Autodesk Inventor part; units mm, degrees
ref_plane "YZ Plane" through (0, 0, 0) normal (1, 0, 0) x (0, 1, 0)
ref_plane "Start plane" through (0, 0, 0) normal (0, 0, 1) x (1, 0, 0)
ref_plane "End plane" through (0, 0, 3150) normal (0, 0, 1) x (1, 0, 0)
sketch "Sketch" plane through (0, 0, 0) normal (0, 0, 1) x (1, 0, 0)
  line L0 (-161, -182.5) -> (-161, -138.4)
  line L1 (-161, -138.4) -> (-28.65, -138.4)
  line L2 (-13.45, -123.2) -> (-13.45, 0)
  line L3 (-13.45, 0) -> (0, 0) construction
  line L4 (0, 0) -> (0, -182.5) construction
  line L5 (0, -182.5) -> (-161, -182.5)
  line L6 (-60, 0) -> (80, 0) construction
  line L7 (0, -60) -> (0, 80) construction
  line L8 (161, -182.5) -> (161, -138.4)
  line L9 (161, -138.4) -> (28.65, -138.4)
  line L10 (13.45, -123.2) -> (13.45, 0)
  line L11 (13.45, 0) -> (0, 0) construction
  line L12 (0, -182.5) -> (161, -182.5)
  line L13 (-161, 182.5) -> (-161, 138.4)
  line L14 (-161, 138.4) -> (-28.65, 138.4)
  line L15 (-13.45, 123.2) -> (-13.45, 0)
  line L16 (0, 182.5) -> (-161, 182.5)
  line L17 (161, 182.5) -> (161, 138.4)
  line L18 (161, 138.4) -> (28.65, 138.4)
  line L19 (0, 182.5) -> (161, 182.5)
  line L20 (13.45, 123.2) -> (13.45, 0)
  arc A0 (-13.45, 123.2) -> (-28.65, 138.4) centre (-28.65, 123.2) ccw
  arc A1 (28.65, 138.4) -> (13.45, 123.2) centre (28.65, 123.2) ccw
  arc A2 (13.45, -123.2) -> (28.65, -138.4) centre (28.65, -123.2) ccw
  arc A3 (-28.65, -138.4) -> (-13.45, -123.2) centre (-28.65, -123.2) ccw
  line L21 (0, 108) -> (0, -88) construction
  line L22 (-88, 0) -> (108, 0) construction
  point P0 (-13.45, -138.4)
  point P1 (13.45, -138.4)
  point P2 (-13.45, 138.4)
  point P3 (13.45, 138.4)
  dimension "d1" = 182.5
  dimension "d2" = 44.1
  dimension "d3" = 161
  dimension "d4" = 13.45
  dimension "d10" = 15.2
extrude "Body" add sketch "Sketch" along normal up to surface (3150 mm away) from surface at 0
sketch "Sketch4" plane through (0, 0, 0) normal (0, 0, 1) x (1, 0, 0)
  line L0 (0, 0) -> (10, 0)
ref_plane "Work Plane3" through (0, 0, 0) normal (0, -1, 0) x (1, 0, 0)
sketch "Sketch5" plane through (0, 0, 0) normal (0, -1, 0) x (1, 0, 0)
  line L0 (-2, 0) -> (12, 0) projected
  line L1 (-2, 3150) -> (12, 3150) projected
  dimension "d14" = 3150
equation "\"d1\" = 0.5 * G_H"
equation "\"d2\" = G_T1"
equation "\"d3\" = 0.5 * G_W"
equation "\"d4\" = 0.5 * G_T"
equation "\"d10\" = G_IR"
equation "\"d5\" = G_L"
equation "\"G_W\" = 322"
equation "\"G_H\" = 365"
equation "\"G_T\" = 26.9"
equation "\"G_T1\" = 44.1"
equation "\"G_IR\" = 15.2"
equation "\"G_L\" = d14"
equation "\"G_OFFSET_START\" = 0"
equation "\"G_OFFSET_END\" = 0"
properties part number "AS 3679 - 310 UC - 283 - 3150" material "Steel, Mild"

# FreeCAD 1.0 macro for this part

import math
import FreeCAD as App
import Part
import Sketcher

V = App.Vector
Q = App.Units.Quantity

doc = App.newDocument("Part")
params = doc.addObject("Spreadsheet::Sheet", "Params")
for row, (alias, value) in enumerate([
    ("sketch1_radius", "15.2 mm"),
    ("sketch1_height", "44.1 mm"),
    ("pad1_length", "3150 mm"),
], start=1):
    params.set(f"A{row}", alias)
    params.set(f"B{row}", "=" + value)
    params.setAlias(f"B{row}", alias)

body = doc.addObject("PartDesign::Body", "Body")

sketch1 = doc.addObject("Sketcher::SketchObject", "Sketch")
body.addObject(sketch1)
sketch1.AttachmentSupport = (doc.XY_Plane, [""])
sketch1.MapMode = "FlatFace"
sketch1.addGeometry(Part.LineSegment(V(-161, -138, 0), V(-161, -182, 0)), False)
sketch1.addGeometry(Part.LineSegment(V(-161, -182, 0), V(161, -182, 0)), False)
sketch1.addGeometry(Part.LineSegment(V(161, -182, 0), V(161, -138, 0)), False)
sketch1.addGeometry(Part.LineSegment(V(161, -138, 0), V(29, -138, 0)), False)
sketch1.addGeometry(Part.ArcOfCircle(Part.Circle(V(29, -123, 0), V(0, 0, 1), 15), math.radians(180), math.radians(270)), False)
sketch1.addGeometry(Part.LineSegment(V(13, -123, 0), V(13, 123, 0)), False)
sketch1.addGeometry(Part.ArcOfCircle(Part.Circle(V(29, 123, 0), V(0, 0, 1), 15), math.radians(90), math.radians(180)), False)
sketch1.addGeometry(Part.LineSegment(V(29, 138, 0), V(161, 138, 0)), False)
sketch1.addGeometry(Part.LineSegment(V(161, 138, 0), V(161, 182, 0)), False)
sketch1.addGeometry(Part.LineSegment(V(161, 182, 0), V(-161, 182, 0)), False)
sketch1.addGeometry(Part.LineSegment(V(-161, 182, 0), V(-161, 138, 0)), False)
sketch1.addGeometry(Part.LineSegment(V(-161, 138, 0), V(-29, 138, 0)), False)
sketch1.addGeometry(Part.ArcOfCircle(Part.Circle(V(-29, 123, 0), V(0, 0, 1), 15), math.radians(0), math.radians(90)), False)
sketch1.addGeometry(Part.LineSegment(V(-13, 123, 0), V(-13, -123, 0)), False)
sketch1.addGeometry(Part.ArcOfCircle(Part.Circle(V(-29, -123, 0), V(0, 0, 1), 15), math.radians(-90), math.radians(0)), False)
sketch1.addGeometry(Part.LineSegment(V(-29, -138, 0), V(-161, -138, 0)), False)
sketch1.addConstraint(Sketcher.Constraint("Coincident", 0, 2, 1, 1))
sketch1.addConstraint(Sketcher.Constraint("Coincident", 1, 2, 2, 1))
sketch1.addConstraint(Sketcher.Constraint("Coincident", 2, 2, 3, 1))
sketch1.addConstraint(Sketcher.Constraint("Tangent", 3, 2, 4, 2))
sketch1.addConstraint(Sketcher.Constraint("Tangent", 4, 1, 5, 1))
sketch1.addConstraint(Sketcher.Constraint("Tangent", 5, 2, 6, 2))
sketch1.addConstraint(Sketcher.Constraint("Tangent", 6, 1, 7, 1))
sketch1.addConstraint(Sketcher.Constraint("Coincident", 7, 2, 8, 1))
sketch1.addConstraint(Sketcher.Constraint("Coincident", 8, 2, 9, 1))
sketch1.addConstraint(Sketcher.Constraint("Coincident", 9, 2, 10, 1))
sketch1.addConstraint(Sketcher.Constraint("Coincident", 10, 2, 11, 1))
sketch1.addConstraint(Sketcher.Constraint("Tangent", 11, 2, 12, 2))
sketch1.addConstraint(Sketcher.Constraint("Tangent", 12, 1, 13, 1))
sketch1.addConstraint(Sketcher.Constraint("Tangent", 13, 2, 14, 2))
sketch1.addConstraint(Sketcher.Constraint("Tangent", 14, 1, 15, 1))
sketch1.addConstraint(Sketcher.Constraint("Coincident", 15, 2, 0, 1))
sketch1.addConstraint(Sketcher.Constraint("Vertical", 0))
sketch1.addConstraint(Sketcher.Constraint("Horizontal", 1))
sketch1.addConstraint(Sketcher.Constraint("Vertical", 2))
sketch1.addConstraint(Sketcher.Constraint("Horizontal", 3))
sketch1.addConstraint(Sketcher.Constraint("Vertical", 5))
sketch1.addConstraint(Sketcher.Constraint("Horizontal", 7))
sketch1.addConstraint(Sketcher.Constraint("Vertical", 8))
sketch1.addConstraint(Sketcher.Constraint("Horizontal", 9))
sketch1.addConstraint(Sketcher.Constraint("Vertical", 10))
sketch1.addConstraint(Sketcher.Constraint("Horizontal", 11))
sketch1.addConstraint(Sketcher.Constraint("Vertical", 13))
sketch1.addConstraint(Sketcher.Constraint("Horizontal", 15))
sketch1.addConstraint(Sketcher.Constraint("Equal", 4, 6))
sketch1.addConstraint(Sketcher.Constraint("Equal", 6, 12))
sketch1.addConstraint(Sketcher.Constraint("Equal", 12, 14))
sketch1.addConstraint(Sketcher.Constraint("Symmetric", 4, 3, 12, 3, -1, 1))
sketch1.addConstraint(Sketcher.Constraint("Symmetric", 0, 2, 8, 2, -1, 1))
sketch1.addConstraint(Sketcher.Constraint("Symmetric", 7, 2, 10, 2, -2))
sketch1.addConstraint(Sketcher.Constraint("Symmetric", 2, 2, 15, 2, -2))
sketch1.addConstraint(Sketcher.Constraint("Radius", 4, Q("15.2 mm")))
sketch1.addConstraint(Sketcher.Constraint("DistanceY", 0, 2, 0, 1, Q("44.1 mm")))
sketch1.addConstraint(Sketcher.Constraint("DistanceX", 0, 2, -1, 1, Q("161 mm")))
sketch1.addConstraint(Sketcher.Constraint("DistanceY", 0, 2, -1, 1, Q("182.5 mm")))
sketch1.addConstraint(Sketcher.Constraint("DistanceX", -1, 1, 4, 1, Q("13.45 mm")))
sketch1.setExpression("Constraints[35]", "Params.sketch1_radius")
sketch1.setExpression("Constraints[36]", "Params.sketch1_height")
pad1 = doc.addObject("PartDesign::Pad", "Pad")
body.addObject(pad1)
pad1.Profile = sketch1
pad1.setExpression("Length", "Params.pad1_length")

doc.recompute()
